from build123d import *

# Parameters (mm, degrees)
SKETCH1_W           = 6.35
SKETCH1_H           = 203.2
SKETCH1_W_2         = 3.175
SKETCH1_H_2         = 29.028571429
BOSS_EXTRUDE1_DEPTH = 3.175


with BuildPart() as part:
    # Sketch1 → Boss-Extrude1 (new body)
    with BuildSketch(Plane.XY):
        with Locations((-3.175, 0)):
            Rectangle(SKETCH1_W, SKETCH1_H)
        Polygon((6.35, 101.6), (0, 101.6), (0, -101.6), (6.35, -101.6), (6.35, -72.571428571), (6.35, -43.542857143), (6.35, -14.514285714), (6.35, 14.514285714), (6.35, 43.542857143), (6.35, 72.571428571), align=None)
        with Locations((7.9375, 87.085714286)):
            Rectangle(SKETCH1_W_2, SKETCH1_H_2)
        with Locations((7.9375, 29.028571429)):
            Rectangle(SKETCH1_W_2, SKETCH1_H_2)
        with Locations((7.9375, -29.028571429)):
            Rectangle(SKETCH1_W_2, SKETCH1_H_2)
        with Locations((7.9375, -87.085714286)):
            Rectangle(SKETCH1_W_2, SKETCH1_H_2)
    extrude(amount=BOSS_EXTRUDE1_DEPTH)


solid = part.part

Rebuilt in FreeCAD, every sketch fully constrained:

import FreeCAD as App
import Part
import Sketcher

V = App.Vector
Q = App.Units.Quantity

doc = App.newDocument("Part")
params = doc.addObject("Spreadsheet::Sheet", "Params")
for row, (alias, value) in enumerate([
    ("sketch1_height", "8 in"),
    ("sketch1_width", "0.5 in"),
    ("sketch1_width2", "0.125 in"),
    ("pad1_length", "0.125 in"),
], start=1):
    params.set(f"A{row}", alias)
    params.set(f"B{row}", "=" + value)
    params.setAlias(f"B{row}", alias)

body = doc.addObject("PartDesign::Body", "Body")

sketch1 = body.newObject("Sketcher::SketchObject", "Sketch")
sketch1.AttachmentSupport = (doc.getObject("XY_Plane"), [""])
sketch1.MapMode = "FlatFace"
sketch1.addGeometry([
    Part.LineSegment(V(-6.35, 101.6, 0), V(-6.35, -101.6, 0)),
    Part.LineSegment(V(-6.35, -101.6, 0), V(6.35, -101.6, 0)),
    Part.LineSegment(V(6.35, -101.6, 0), V(9.525, -101.6, 0)),
    Part.LineSegment(V(9.525, -101.6, 0), V(9.525, -72.571429, 0)),
    Part.LineSegment(V(9.525, -72.571429, 0), V(6.35, -72.571429, 0)),
    Part.LineSegment(V(6.35, -72.571429, 0), V(6.35, -43.542857, 0)),
    Part.LineSegment(V(6.35, -43.542857, 0), V(9.525, -43.542857, 0)),
    Part.LineSegment(V(9.525, -43.542857, 0), V(9.525, -14.514286, 0)),
    Part.LineSegment(V(9.525, -14.514286, 0), V(6.35, -14.514286, 0)),
    Part.LineSegment(V(6.35, -14.514286, 0), V(6.35, 14.514286, 0)),
    Part.LineSegment(V(6.35, 14.514286, 0), V(9.525, 14.514286, 0)),
    Part.LineSegment(V(9.525, 14.514286, 0), V(9.525, 43.542857, 0)),
    Part.LineSegment(V(9.525, 43.542857, 0), V(6.35, 43.542857, 0)),
    Part.LineSegment(V(6.35, 43.542857, 0), V(6.35, 72.571429, 0)),
    Part.LineSegment(V(6.35, 72.571429, 0), V(9.525, 72.571429, 0)),
    Part.LineSegment(V(9.525, 72.571429, 0), V(9.525, 101.6, 0)),
    Part.LineSegment(V(9.525, 101.6, 0), V(6.35, 101.6, 0)),
    Part.LineSegment(V(6.35, 101.6, 0), V(-6.35, 101.6, 0)),
], False)
sketch1.addConstraint([
    Sketcher.Constraint("Coincident", 0, 2, 1, 1),
    Sketcher.Constraint("Coincident", 1, 2, 2, 1),
    Sketcher.Constraint("Coincident", 2, 2, 3, 1),
    Sketcher.Constraint("Coincident", 3, 2, 4, 1),
    Sketcher.Constraint("Coincident", 4, 2, 5, 1),
    Sketcher.Constraint("Coincident", 5, 2, 6, 1),
    Sketcher.Constraint("Coincident", 6, 2, 7, 1),
    Sketcher.Constraint("Coincident", 7, 2, 8, 1),
    Sketcher.Constraint("Coincident", 8, 2, 9, 1),
    Sketcher.Constraint("Coincident", 9, 2, 10, 1),
    Sketcher.Constraint("Coincident", 10, 2, 11, 1),
    Sketcher.Constraint("Coincident", 11, 2, 12, 1),
    Sketcher.Constraint("Coincident", 12, 2, 13, 1),
    Sketcher.Constraint("Coincident", 13, 2, 14, 1),
    Sketcher.Constraint("Coincident", 14, 2, 15, 1),
    Sketcher.Constraint("Coincident", 15, 2, 16, 1),
    Sketcher.Constraint("Coincident", 16, 2, 17, 1),
    Sketcher.Constraint("Coincident", 17, 2, 0, 1),
    Sketcher.Constraint("Vertical", 0),
    Sketcher.Constraint("Horizontal", 1),
    Sketcher.Constraint("Horizontal", 2),
    Sketcher.Constraint("Vertical", 3),
    Sketcher.Constraint("Horizontal", 4),
    Sketcher.Constraint("Vertical", 5),
    Sketcher.Constraint("Horizontal", 6),
    Sketcher.Constraint("Vertical", 7),
    Sketcher.Constraint("Horizontal", 8),
    Sketcher.Constraint("Vertical", 9),
    Sketcher.Constraint("Horizontal", 10),
    Sketcher.Constraint("Vertical", 11),
    Sketcher.Constraint("Horizontal", 12),
    Sketcher.Constraint("Vertical", 13),
    Sketcher.Constraint("Horizontal", 14),
    Sketcher.Constraint("Vertical", 15),
    Sketcher.Constraint("Horizontal", 16),
    Sketcher.Constraint("Horizontal", 17),
    Sketcher.Constraint("Symmetric", 0, 2, 16, 2, -1, 1),
    Sketcher.Constraint("Symmetric", 7, 2, 10, 2, -1),
    Sketcher.Constraint("Symmetric", 5, 2, 12, 2, -1),
    Sketcher.Constraint("Symmetric", 3, 2, 14, 2, -1),
    Sketcher.Constraint("Vertical", 1, 2, 4, 2),
    Sketcher.Constraint("Vertical", 3, 2, 6, 2),
    Sketcher.Constraint("Vertical", 5, 2, 8, 2),
    Sketcher.Constraint("Vertical", 13, 2, 16, 2),
    Sketcher.Constraint("Equal", 3, 5),
    Sketcher.Constraint("Equal", 5, 7),
    Sketcher.Constraint("Equal", 7, 9),
    Sketcher.Constraint("DistanceY", 0, 2, 0, 1, Q("8 in")),
    Sketcher.Constraint("DistanceX", 1, 1, 1, 2, Q("0.5 in")),
    Sketcher.Constraint("DistanceX", 2, 1, 2, 2, Q("0.125 in")),
])
sketch1.setExpression("Constraints[47]", "Params.sketch1_height")
sketch1.setExpression("Constraints[48]", "Params.sketch1_width")
sketch1.setExpression("Constraints[49]", "Params.sketch1_width2")
pad1 = body.newObject("PartDesign::Pad", "Pad")
pad1.Profile = sketch1
pad1.setExpression("Length", "Params.pad1_length")

doc.recompute()
